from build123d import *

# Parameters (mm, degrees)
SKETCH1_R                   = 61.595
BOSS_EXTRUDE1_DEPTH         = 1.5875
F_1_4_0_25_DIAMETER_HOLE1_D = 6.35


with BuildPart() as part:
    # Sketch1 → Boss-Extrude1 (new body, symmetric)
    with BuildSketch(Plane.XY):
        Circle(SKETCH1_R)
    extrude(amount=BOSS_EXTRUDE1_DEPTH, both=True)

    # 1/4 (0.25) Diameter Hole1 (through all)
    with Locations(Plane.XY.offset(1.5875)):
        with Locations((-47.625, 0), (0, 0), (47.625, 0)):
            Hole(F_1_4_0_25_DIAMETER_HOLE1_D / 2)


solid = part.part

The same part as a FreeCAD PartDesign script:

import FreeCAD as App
import Part
import Sketcher
from FreeCAD import Vector
Q = App.Units.Quantity

doc = App.newDocument("Part")
body = doc.addObject("PartDesign::Body", "Body")

# Sketch on XY plane
sketch1 = body.newObject("Sketcher::SketchObject", "Sketch")
sketch1.AttachmentSupport = (doc.getObject("XY_Plane"), [""])
sketch1.MapMode = "FlatFace"
sketch1.addGeometry(Part.Circle(Vector(0, 0, 0), Vector(0, 0, 1), 61.595), False)
sketch1.addConstraint([
    Sketcher.Constraint("Coincident", 0, 3, -1, 1),
    Sketcher.Constraint("Diameter", 0, Q("4.85 in")),
])
pad1 = body.newObject("PartDesign::Pad", "Pad")
pad1.Profile = sketch1
pad1.Length = Q("0.125 in")
pad1.Midplane = True

# Sketch on XY plane
sketch2 = body.newObject("Sketcher::SketchObject", "Sketch001")
sketch2.AttachmentSupport = (doc.getObject("XY_Plane"), [""])
sketch2.MapMode = "FlatFace"
sketch2.AttachmentOffset = App.Placement(Vector(0, 0, 0.0625 * 25.4), App.Rotation())
sketch2.addGeometry([
    Part.Circle(Vector(-47.625, 0, 0), Vector(0, 0, 1), 3.175),
    Part.Circle(Vector(0, 0, 0), Vector(0, 0, 1), 3.175),
    Part.Circle(Vector(47.625, 0, 0), Vector(0, 0, 1), 3.175),
], False)
sketch2.addConstraint([
    Sketcher.Constraint("Coincident", 1, 3, -1, 1),
    Sketcher.Constraint("Equal", 0, 1),
    Sketcher.Constraint("Equal", 1, 2),
    Sketcher.Constraint("Symmetric", 0, 3, 2, 3, -1, 1),
    Sketcher.Constraint("PointOnObject", 0, 3, -1),
    Sketcher.Constraint("Diameter", 0, Q("0.25 in")),
    Sketcher.Constraint("DistanceX", 0, 3, 2, 3, Q("3.75 in")),
])
doc.recompute()
hole = body.newObject("PartDesign::Hole", "Hole")
hole.Profile = sketch2
hole.ThreadType = "None"
hole.Diameter = Q("0.25 in")
hole.DepthType = "ThroughAll"

doc.recompute()
